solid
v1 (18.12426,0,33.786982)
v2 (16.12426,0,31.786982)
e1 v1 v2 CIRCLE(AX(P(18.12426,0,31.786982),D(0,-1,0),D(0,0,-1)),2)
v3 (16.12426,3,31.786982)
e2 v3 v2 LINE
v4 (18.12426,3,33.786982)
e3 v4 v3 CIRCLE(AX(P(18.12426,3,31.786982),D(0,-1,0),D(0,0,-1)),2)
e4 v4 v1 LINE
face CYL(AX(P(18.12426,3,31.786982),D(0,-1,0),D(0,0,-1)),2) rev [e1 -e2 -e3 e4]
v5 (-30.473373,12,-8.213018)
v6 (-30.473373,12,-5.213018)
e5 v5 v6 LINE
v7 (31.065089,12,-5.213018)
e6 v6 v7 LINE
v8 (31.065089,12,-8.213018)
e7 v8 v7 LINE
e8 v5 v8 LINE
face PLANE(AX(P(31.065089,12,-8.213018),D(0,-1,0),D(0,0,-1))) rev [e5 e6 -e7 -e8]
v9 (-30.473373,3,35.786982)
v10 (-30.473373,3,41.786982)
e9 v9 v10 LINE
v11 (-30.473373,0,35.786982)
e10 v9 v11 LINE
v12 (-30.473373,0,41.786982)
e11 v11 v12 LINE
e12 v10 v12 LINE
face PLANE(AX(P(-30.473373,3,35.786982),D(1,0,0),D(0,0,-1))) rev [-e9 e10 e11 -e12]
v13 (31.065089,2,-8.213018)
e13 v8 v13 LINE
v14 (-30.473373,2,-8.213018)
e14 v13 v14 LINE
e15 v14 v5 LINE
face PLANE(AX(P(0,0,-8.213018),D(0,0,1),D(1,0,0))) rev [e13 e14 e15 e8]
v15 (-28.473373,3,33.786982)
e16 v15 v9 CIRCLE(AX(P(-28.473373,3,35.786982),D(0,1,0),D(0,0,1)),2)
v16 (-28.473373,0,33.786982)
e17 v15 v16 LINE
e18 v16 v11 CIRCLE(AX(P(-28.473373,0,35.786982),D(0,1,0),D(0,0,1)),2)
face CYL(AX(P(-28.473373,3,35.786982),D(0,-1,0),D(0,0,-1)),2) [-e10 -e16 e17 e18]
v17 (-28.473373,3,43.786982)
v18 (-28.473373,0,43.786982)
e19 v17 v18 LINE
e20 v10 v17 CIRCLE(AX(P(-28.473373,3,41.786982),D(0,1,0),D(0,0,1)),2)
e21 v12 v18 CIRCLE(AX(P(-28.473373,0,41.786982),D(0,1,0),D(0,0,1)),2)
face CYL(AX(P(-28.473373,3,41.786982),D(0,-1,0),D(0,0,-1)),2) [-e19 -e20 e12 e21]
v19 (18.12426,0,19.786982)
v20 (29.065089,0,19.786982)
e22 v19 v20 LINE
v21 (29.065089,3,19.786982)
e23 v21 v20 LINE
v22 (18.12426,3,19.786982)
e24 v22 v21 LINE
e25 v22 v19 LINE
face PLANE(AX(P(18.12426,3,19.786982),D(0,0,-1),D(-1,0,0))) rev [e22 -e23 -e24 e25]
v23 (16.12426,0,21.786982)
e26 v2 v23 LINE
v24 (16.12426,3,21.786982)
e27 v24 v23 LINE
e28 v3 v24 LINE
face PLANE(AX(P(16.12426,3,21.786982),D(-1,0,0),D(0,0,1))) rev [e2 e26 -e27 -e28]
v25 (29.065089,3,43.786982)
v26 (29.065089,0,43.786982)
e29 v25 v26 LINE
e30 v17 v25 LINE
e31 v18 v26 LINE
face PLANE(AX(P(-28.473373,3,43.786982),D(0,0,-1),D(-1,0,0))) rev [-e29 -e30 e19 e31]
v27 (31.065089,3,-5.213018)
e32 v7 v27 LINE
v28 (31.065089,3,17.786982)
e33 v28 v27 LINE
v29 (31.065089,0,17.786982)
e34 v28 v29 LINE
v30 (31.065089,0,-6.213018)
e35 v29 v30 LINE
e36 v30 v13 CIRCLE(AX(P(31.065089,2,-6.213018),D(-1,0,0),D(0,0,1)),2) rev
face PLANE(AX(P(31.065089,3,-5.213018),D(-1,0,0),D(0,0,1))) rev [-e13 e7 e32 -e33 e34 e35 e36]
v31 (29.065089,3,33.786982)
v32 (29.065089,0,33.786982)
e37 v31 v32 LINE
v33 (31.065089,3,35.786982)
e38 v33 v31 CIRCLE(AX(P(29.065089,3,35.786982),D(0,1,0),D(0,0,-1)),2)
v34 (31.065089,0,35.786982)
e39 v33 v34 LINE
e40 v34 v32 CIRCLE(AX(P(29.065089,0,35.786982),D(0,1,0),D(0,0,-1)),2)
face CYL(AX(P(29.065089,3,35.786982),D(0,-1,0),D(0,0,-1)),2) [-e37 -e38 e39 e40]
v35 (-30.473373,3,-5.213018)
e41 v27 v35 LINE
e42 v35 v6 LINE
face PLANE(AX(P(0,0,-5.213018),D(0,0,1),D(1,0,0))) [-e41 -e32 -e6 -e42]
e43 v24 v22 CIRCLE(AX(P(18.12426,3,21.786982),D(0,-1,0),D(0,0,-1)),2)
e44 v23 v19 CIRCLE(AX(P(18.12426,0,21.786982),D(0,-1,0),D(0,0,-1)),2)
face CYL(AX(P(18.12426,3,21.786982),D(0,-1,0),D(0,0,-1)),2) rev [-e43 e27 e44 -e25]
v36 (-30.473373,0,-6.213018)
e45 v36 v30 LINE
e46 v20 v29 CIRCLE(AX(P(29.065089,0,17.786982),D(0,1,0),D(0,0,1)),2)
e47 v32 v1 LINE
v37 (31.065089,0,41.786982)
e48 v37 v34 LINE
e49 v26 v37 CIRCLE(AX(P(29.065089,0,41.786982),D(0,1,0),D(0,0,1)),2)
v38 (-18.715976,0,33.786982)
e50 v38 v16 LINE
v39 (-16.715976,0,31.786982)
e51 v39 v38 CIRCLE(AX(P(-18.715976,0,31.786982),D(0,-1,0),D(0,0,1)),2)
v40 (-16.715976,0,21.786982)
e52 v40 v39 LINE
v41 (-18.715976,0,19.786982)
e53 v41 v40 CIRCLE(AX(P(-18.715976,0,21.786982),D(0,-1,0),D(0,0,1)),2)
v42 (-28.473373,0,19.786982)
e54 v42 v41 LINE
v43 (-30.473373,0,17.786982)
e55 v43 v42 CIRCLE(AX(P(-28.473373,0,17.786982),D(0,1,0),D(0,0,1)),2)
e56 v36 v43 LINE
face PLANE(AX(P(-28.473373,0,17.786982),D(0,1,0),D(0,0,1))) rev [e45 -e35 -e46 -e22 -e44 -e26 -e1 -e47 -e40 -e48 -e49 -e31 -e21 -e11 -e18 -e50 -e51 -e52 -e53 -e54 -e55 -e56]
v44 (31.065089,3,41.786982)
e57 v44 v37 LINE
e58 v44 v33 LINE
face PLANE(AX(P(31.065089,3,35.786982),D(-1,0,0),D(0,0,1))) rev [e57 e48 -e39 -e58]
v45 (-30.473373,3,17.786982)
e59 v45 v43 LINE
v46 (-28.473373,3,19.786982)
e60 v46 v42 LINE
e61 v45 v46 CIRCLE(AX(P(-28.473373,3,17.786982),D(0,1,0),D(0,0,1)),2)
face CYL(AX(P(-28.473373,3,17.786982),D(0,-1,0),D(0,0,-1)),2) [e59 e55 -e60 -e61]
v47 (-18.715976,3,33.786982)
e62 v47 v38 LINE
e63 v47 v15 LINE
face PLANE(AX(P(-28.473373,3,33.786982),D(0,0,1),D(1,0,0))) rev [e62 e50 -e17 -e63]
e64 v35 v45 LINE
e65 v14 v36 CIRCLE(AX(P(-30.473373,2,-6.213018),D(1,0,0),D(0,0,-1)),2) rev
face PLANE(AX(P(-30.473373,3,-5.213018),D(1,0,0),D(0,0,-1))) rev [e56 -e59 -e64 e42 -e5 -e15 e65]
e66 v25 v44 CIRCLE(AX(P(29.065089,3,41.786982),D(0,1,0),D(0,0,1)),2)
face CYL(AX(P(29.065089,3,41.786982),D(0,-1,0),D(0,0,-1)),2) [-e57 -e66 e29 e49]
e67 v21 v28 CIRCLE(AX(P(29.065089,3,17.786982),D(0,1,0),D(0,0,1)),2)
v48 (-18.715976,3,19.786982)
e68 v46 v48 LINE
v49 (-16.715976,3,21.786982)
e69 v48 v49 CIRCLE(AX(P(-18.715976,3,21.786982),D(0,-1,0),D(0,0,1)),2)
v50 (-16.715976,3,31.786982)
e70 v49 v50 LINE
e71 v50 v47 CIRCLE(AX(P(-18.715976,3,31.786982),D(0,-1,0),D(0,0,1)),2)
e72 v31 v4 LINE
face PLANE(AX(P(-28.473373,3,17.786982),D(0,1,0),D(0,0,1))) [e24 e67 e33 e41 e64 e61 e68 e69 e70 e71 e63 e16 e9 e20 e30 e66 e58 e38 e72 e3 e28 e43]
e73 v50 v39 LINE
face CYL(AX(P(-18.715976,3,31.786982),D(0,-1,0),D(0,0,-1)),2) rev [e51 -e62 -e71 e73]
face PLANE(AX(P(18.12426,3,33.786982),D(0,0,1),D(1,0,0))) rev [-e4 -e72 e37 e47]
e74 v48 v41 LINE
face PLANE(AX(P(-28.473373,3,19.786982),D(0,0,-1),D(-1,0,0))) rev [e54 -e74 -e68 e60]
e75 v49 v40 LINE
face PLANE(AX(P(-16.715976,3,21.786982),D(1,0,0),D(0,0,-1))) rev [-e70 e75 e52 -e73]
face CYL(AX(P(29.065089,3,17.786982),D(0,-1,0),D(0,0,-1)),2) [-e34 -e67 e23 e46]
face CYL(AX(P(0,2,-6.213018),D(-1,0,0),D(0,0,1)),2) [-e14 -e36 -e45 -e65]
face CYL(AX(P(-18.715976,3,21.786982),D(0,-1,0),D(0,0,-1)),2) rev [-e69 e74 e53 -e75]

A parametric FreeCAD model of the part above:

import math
import FreeCAD as App
import Part
import Sketcher
Q = App.Units.Quantity


def edges_at(feature, points):
    """Names of the edges that pass closest to the given points."""
    edges = feature.Shape.Edges
    near = lambda p: min(range(len(edges)), key=lambda i: edges[i].distToShape(Part.Vertex(*p))[0])
    return sorted({f"Edge{near(p) + 1}" for p in points})


def add_polygon(sketch, points):
    """Adds a closed chain of lines whose ends are joined by coincident constraints."""
    first, n = sketch.GeometryCount, len(points)
    for a, b in zip(points, points[1:] + points[:1]):
        sketch.addGeometry(Part.LineSegment(App.Vector(*a, 0), App.Vector(*b, 0)), False)
    for i in range(n):
        sketch.addConstraint(Sketcher.Constraint("Coincident", first + i, 2, first + (i + 1) % n, 1))

doc = App.newDocument("Part")
body = doc.addObject("PartDesign::Body", "Body")

# Sketch on XZ plane
sketch1 = doc.addObject("Sketcher::SketchObject", "Sketch")
body.addObject(sketch1)
sketch1.AttachmentSupport = (doc.XZ_Plane, [""])
sketch1.MapMode = "FlatFace"
sketch1.addGeometry(Part.LineSegment(App.Vector(18.1, 19.8, 0), App.Vector(29.1, 19.8, 0)), False)
sketch1.addGeometry(Part.ArcOfCircle(Part.Circle(App.Vector(29.1, 17.8, 0), App.Vector(0, 0, 1), 2), math.radians(0), math.radians(90)), False)
sketch1.addGeometry(Part.LineSegment(App.Vector(31.1, 17.8, 0), App.Vector(31.1, -5.2, 0)), False)
sketch1.addGeometry(Part.LineSegment(App.Vector(31.1, -5.2, 0), App.Vector(-30.5, -5.2, 0)), False)
sketch1.addGeometry(Part.LineSegment(App.Vector(-30.5, -5.2, 0), App.Vector(-30.5, 17.8, 0)), False)
sketch1.addGeometry(Part.ArcOfCircle(Part.Circle(App.Vector(-28.5, 17.8, 0), App.Vector(0, 0, 1), 2), math.radians(90), math.radians(180)), False)
sketch1.addGeometry(Part.LineSegment(App.Vector(-28.5, 19.8, 0), App.Vector(-18.7, 19.8, 0)), False)
sketch1.addGeometry(Part.ArcOfCircle(Part.Circle(App.Vector(-18.7, 21.8, 0), App.Vector(0, 0, 1), 2), math.radians(-90), math.radians(0)), False)
sketch1.addGeometry(Part.LineSegment(App.Vector(-16.7, 21.8, 0), App.Vector(-16.7, 31.8, 0)), False)
sketch1.addGeometry(Part.ArcOfCircle(Part.Circle(App.Vector(-18.7, 31.8, 0), App.Vector(0, 0, 1), 2), math.radians(0), math.radians(90)), False)
sketch1.addGeometry(Part.LineSegment(App.Vector(-18.7, 33.8, 0), App.Vector(-28.5, 33.8, 0)), False)
sketch1.addGeometry(Part.ArcOfCircle(Part.Circle(App.Vector(-28.5, 35.8, 0), App.Vector(0, 0, 1), 2), math.radians(180), math.radians(270)), False)
sketch1.addGeometry(Part.LineSegment(App.Vector(-30.5, 35.8, 0), App.Vector(-30.5, 41.8, 0)), False)
sketch1.addGeometry(Part.ArcOfCircle(Part.Circle(App.Vector(-28.5, 41.8, 0), App.Vector(0, 0, 1), 2), math.radians(90), math.radians(180)), False)
sketch1.addGeometry(Part.LineSegment(App.Vector(-28.5, 43.8, 0), App.Vector(29.1, 43.8, 0)), False)
sketch1.addGeometry(Part.ArcOfCircle(Part.Circle(App.Vector(29.1, 41.8, 0), App.Vector(0, 0, 1), 2), math.radians(0), math.radians(90)), False)
sketch1.addGeometry(Part.LineSegment(App.Vector(31.1, 41.8, 0), App.Vector(31.1, 35.8, 0)), False)
sketch1.addGeometry(Part.ArcOfCircle(Part.Circle(App.Vector(29.1, 35.8, 0), App.Vector(0, 0, 1), 2), math.radians(-90), math.radians(0)), False)
sketch1.addGeometry(Part.LineSegment(App.Vector(29.1, 33.8, 0), App.Vector(18.1, 33.8, 0)), False)
sketch1.addGeometry(Part.ArcOfCircle(Part.Circle(App.Vector(18.1, 31.8, 0), App.Vector(0, 0, 1), 2), math.radians(90), math.radians(180)), False)
sketch1.addGeometry(Part.LineSegment(App.Vector(16.1, 31.8, 0), App.Vector(16.1, 21.8, 0)), False)
sketch1.addGeometry(Part.ArcOfCircle(Part.Circle(App.Vector(18.1, 21.8, 0), App.Vector(0, 0, 1), 2), math.radians(180), math.radians(270)), False)
sketch1.addConstraint(Sketcher.Constraint("Tangent", 0, 2, 1, 2))
sketch1.addConstraint(Sketcher.Constraint("Tangent", 1, 1, 2, 1))
sketch1.addConstraint(Sketcher.Constraint("Coincident", 2, 2, 3, 1))
sketch1.addConstraint(Sketcher.Constraint("Coincident", 3, 2, 4, 1))
sketch1.addConstraint(Sketcher.Constraint("Tangent", 4, 2, 5, 2))
sketch1.addConstraint(Sketcher.Constraint("Tangent", 5, 1, 6, 1))
sketch1.addConstraint(Sketcher.Constraint("Tangent", 6, 2, 7, 1))
sketch1.addConstraint(Sketcher.Constraint("Tangent", 7, 2, 8, 1))
sketch1.addConstraint(Sketcher.Constraint("Tangent", 8, 2, 9, 1))
sketch1.addConstraint(Sketcher.Constraint("Tangent", 9, 2, 10, 1))
sketch1.addConstraint(Sketcher.Constraint("Tangent", 10, 2, 11, 2))
sketch1.addConstraint(Sketcher.Constraint("Tangent", 11, 1, 12, 1))
sketch1.addConstraint(Sketcher.Constraint("Tangent", 12, 2, 13, 2))
sketch1.addConstraint(Sketcher.Constraint("Tangent", 13, 1, 14, 1))
sketch1.addConstraint(Sketcher.Constraint("Tangent", 14, 2, 15, 2))
sketch1.addConstraint(Sketcher.Constraint("Tangent", 15, 1, 16, 1))
sketch1.addConstraint(Sketcher.Constraint("Tangent", 16, 2, 17, 2))
sketch1.addConstraint(Sketcher.Constraint("Tangent", 17, 1, 18, 1))
sketch1.addConstraint(Sketcher.Constraint("Tangent", 18, 2, 19, 1))
sketch1.addConstraint(Sketcher.Constraint("Tangent", 19, 2, 20, 1))
sketch1.addConstraint(Sketcher.Constraint("Tangent", 20, 2, 21, 1))
sketch1.addConstraint(Sketcher.Constraint("Tangent", 21, 2, 0, 1))
sketch1.addConstraint(Sketcher.Constraint("Horizontal", 0))
sketch1.addConstraint(Sketcher.Constraint("Vertical", 2))
sketch1.addConstraint(Sketcher.Constraint("Horizontal", 3))
sketch1.addConstraint(Sketcher.Constraint("Vertical", 4))
sketch1.addConstraint(Sketcher.Constraint("Horizontal", 6))
sketch1.addConstraint(Sketcher.Constraint("Vertical", 8))
sketch1.addConstraint(Sketcher.Constraint("Horizontal", 10))
sketch1.addConstraint(Sketcher.Constraint("Vertical", 12))
sketch1.addConstraint(Sketcher.Constraint("Horizontal", 14))
sketch1.addConstraint(Sketcher.Constraint("Vertical", 16))
sketch1.addConstraint(Sketcher.Constraint("Horizontal", 18))
sketch1.addConstraint(Sketcher.Constraint("Vertical", 20))
sketch1.addConstraint(Sketcher.Constraint("Equal", 1, 5))
sketch1.addConstraint(Sketcher.Constraint("Equal", 5, 7))
sketch1.addConstraint(Sketcher.Constraint("Equal", 7, 9))
sketch1.addConstraint(Sketcher.Constraint("Equal", 9, 11))
sketch1.addConstraint(Sketcher.Constraint("Equal", 11, 13))
sketch1.addConstraint(Sketcher.Constraint("Equal", 13, 15))
sketch1.addConstraint(Sketcher.Constraint("Equal", 15, 17))
sketch1.addConstraint(Sketcher.Constraint("Equal", 17, 19))
sketch1.addConstraint(Sketcher.Constraint("Equal", 19, 21))
sketch1.addConstraint(Sketcher.Constraint("Horizontal", 1, 3, 5, 3))
sketch1.addConstraint(Sketcher.Constraint("Horizontal", 11, 3, 17, 3))
sketch1.addConstraint(Sketcher.Constraint("Vertical", 5, 3, 11, 3))
sketch1.addConstraint(Sketcher.Constraint("Vertical", 1, 3, 15, 3))
sketch1.addConstraint(Sketcher.Constraint("Radius", 1, Q("2 mm")))
sketch1.addConstraint(Sketcher.Constraint("DistanceY", 2, 2, 2, 1, Q("23 mm")))
sketch1.addConstraint(Sketcher.Constraint("DistanceY", 8, 1, 8, 2, Q("10 mm")))
sketch1.addConstraint(Sketcher.Constraint("DistanceY", 12, 1, 12, 2, Q("6 mm")))
sketch1.addConstraint(Sketcher.Constraint("DistanceX", 0, 1, 0, 2, Q("10.940828 mm")))
sketch1.addConstraint(Sketcher.Constraint("DistanceX", 3, 2, 3, 1, Q("61.538462 mm")))
sketch1.addConstraint(Sketcher.Constraint("DistanceX", 6, 1, 6, 2, Q("9.757396 mm")))
sketch1.addConstraint(Sketcher.Constraint("DistanceX", -1, 1, 1, 3, Q("29.065089 mm")))
sketch1.addConstraint(Sketcher.Constraint("DistanceY", -1, 1, 1, 3, Q("17.786982 mm")))
pad1 = doc.addObject("PartDesign::Pad", "Pad")
body.addObject(pad1)
pad1.Profile = sketch1
pad1.Length = 3
pad1.Reversed = True

# Sketch on XY plane
sketch2 = doc.addObject("Sketcher::SketchObject", "Sketch001")
body.addObject(sketch2)
sketch2.AttachmentSupport = (doc.XY_Plane, [""])
sketch2.MapMode = "FlatFace"
sketch2.AttachmentOffset = App.Placement(App.Vector(0, 0, -5.213018), App.Rotation())
add_polygon(sketch2, [(31, 12), (31, 0), (-30, 0), (-30, 12)])  # lines 0-3
sketch2.addConstraint(Sketcher.Constraint("Vertical", 0))
sketch2.addConstraint(Sketcher.Constraint("Horizontal", 1))
sketch2.addConstraint(Sketcher.Constraint("Vertical", 2))
sketch2.addConstraint(Sketcher.Constraint("Horizontal", 3))
sketch2.addConstraint(Sketcher.Constraint("PointOnObject", 0, 2, -1))
sketch2.addConstraint(Sketcher.Constraint("DistanceY", 0, 2, 0, 1, Q("12 mm")))
sketch2.addConstraint(Sketcher.Constraint("DistanceX", 1, 2, 1, 1, Q("61.538462 mm")))
sketch2.addConstraint(Sketcher.Constraint("DistanceX", -1, 1, 0, 2, Q("31.065089 mm")))
pad2 = doc.addObject("PartDesign::Pad", "Pad001")
body.addObject(pad2)
pad2.Profile = sketch2
pad2.Length = 3
pad2.Reversed = True
doc.recompute()

fillet = doc.addObject("PartDesign::Fillet", "Fillet")
body.addObject(fillet)
fillet.Base = (pad2, edges_at(pad2, [(0.296, 0, -8.213)]))
fillet.Radius = 2

doc.recompute()
